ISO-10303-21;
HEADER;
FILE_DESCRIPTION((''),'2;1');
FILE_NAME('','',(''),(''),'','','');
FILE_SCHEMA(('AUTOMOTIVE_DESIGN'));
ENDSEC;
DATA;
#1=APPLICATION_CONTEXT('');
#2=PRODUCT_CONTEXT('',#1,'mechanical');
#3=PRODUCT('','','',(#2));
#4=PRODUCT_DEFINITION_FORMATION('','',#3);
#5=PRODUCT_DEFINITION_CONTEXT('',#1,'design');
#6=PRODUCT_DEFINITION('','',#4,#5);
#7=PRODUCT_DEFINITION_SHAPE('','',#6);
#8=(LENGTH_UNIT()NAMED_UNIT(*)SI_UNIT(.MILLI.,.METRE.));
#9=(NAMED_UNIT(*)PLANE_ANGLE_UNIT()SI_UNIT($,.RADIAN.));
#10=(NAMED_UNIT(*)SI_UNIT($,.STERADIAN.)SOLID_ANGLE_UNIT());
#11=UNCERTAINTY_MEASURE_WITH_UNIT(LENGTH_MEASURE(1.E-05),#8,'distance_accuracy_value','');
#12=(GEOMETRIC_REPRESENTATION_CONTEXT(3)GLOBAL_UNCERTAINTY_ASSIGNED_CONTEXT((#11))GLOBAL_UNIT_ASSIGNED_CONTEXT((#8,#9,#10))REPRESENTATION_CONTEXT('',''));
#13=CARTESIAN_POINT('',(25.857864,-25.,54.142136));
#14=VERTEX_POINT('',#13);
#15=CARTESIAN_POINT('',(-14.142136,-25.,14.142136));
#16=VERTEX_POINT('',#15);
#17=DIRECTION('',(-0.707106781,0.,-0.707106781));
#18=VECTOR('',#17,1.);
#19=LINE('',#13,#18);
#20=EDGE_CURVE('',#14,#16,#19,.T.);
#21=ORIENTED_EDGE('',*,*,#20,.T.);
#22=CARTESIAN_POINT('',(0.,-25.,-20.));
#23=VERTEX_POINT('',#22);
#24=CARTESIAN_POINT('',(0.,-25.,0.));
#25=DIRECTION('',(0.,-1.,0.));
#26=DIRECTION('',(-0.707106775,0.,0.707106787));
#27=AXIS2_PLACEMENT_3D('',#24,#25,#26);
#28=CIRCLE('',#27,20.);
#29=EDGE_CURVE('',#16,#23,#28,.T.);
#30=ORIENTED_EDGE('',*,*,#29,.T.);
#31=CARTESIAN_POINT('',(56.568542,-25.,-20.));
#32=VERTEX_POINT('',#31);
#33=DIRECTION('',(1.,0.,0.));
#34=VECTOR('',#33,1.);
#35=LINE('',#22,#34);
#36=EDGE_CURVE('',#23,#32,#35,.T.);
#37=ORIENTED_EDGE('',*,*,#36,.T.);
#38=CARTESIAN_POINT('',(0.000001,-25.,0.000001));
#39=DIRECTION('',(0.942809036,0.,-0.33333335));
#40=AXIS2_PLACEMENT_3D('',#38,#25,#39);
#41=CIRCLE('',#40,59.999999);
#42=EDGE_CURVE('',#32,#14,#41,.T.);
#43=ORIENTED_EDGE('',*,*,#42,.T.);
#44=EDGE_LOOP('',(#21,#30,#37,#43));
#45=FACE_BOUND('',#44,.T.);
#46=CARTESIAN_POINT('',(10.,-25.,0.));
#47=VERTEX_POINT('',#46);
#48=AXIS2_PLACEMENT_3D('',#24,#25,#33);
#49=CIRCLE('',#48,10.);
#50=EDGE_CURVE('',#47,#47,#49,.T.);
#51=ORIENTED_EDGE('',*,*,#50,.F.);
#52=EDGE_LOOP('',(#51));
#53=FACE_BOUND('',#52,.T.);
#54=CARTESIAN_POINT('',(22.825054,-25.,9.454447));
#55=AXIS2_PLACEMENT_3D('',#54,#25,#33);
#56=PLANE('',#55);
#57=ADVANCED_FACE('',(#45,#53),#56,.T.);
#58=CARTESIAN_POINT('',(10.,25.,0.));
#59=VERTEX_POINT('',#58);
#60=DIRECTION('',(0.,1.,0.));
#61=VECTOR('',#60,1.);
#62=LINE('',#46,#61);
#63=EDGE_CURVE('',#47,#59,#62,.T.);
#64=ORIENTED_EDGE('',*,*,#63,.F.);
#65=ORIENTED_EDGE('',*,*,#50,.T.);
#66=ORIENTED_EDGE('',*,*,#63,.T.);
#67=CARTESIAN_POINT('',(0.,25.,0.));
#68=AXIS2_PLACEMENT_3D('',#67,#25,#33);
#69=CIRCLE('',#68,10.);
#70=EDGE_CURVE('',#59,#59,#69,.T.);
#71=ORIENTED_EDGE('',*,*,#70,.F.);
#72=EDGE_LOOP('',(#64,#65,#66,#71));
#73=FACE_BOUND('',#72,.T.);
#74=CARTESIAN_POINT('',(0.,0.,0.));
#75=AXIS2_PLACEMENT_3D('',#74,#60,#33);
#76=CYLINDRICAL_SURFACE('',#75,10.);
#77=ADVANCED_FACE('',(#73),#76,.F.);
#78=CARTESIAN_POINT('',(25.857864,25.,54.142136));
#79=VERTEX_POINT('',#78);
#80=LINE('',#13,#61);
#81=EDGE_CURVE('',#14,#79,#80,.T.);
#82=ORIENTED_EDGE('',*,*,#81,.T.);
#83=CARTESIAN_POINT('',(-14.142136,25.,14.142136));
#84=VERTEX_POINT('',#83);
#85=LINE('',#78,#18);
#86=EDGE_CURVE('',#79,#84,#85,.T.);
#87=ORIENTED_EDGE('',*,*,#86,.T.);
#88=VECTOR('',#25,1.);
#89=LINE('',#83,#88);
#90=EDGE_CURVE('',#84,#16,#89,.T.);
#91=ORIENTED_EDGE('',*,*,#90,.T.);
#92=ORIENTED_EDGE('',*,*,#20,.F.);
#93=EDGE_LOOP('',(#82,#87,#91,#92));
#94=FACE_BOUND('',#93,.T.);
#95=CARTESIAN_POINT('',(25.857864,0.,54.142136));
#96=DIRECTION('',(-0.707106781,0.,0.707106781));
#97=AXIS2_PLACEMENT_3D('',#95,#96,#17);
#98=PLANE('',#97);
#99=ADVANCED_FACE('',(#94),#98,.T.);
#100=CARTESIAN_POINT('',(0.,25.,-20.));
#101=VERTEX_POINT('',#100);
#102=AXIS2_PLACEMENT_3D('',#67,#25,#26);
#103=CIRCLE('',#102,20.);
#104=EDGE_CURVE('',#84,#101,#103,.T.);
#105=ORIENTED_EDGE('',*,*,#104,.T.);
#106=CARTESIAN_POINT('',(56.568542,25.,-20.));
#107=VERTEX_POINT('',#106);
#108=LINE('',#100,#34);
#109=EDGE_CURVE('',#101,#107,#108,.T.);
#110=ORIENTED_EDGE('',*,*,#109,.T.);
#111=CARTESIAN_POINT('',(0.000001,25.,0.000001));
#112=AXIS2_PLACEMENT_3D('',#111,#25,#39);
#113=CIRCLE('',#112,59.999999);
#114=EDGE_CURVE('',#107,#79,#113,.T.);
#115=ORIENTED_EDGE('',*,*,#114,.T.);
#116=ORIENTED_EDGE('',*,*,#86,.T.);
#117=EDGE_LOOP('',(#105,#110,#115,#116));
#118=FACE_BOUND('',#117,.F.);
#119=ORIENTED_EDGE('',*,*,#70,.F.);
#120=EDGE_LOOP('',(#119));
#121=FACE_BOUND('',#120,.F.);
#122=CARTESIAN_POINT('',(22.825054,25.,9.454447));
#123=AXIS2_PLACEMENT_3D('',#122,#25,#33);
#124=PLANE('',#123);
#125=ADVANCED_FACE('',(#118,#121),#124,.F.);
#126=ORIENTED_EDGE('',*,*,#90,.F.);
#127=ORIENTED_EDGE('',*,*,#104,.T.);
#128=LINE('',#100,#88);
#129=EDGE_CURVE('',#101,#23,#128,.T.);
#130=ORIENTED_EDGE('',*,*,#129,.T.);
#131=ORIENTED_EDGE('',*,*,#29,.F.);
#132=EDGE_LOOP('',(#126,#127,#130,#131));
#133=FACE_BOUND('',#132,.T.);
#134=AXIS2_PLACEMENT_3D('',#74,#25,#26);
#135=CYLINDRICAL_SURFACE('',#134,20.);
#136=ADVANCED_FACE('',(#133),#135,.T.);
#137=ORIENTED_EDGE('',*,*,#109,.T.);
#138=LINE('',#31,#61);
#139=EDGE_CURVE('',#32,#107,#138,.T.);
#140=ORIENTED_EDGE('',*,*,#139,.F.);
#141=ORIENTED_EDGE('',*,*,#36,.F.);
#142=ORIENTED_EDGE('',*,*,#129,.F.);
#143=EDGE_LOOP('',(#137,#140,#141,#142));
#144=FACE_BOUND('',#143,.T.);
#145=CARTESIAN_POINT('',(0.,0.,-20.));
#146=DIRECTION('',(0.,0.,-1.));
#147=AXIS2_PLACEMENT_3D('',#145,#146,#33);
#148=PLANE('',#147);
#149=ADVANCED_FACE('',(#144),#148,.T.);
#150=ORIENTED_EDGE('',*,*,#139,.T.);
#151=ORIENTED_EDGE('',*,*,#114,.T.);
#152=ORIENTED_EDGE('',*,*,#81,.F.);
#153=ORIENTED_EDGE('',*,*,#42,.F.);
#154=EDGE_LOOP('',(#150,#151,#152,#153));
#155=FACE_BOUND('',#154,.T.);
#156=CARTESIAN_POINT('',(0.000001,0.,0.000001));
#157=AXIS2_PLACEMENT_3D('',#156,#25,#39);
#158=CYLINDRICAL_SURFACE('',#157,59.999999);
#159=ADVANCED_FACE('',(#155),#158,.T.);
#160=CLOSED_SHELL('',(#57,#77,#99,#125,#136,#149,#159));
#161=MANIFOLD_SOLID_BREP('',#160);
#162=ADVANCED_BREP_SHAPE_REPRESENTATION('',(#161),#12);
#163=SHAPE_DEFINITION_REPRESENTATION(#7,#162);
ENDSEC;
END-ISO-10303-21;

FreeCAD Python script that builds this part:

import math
import FreeCAD as App
import Part
import Sketcher

V = App.Vector
Q = App.Units.Quantity

doc = App.newDocument("Part")
body = doc.addObject("PartDesign::Body", "Body")

sketch1 = body.newObject("Sketcher::SketchObject", "Sketch")
sketch1.AttachmentSupport = (doc.getObject("XZ_Plane"), [""])
sketch1.MapMode = "FlatFace"
sketch1.addGeometry([
    Part.LineSegment(V(26, 54, 0), V(-14, 14, 0)),
    Part.ArcOfCircle(Part.Circle(V(0, 0, 0), V(0, 0, 1), 20), math.radians(135), math.radians(270)),
    Part.LineSegment(V(0, -20, 0), V(57, -20, 0)),
    Part.ArcOfCircle(Part.Circle(V(0, 0, 0), V(0, 0, 1), 60), math.radians(-19), math.radians(64)),
    Part.Circle(V(0, 0, 0), V(0, 0, 1), 10),
], False)
sketch1.addConstraint([
    Sketcher.Constraint("Tangent", 0, 2, 1, 1),
    Sketcher.Constraint("Tangent", 1, 2, 2, 1),
    Sketcher.Constraint("Coincident", 2, 2, 3, 1),
    Sketcher.Constraint("Coincident", 3, 2, 0, 1),
    Sketcher.Constraint("Horizontal", 2),
    Sketcher.Constraint("Coincident", 1, 3, -1, 1),
    Sketcher.Constraint("Coincident", 3, 3, -1, 1),
    Sketcher.Constraint("Coincident", 4, 3, -1, 1),
    Sketcher.Constraint("Diameter", 4, 20.0),
    Sketcher.Constraint("Radius", 1, 20.0),
    Sketcher.Constraint("Radius", 3, 59.999999),
    Sketcher.Constraint("Angle", 0, Q("-135 deg")),
])
pad1 = body.newObject("PartDesign::Pad", "Pad")
pad1.Profile = sketch1
pad1.Length = 50
pad1.Midplane = True

doc.recompute()
